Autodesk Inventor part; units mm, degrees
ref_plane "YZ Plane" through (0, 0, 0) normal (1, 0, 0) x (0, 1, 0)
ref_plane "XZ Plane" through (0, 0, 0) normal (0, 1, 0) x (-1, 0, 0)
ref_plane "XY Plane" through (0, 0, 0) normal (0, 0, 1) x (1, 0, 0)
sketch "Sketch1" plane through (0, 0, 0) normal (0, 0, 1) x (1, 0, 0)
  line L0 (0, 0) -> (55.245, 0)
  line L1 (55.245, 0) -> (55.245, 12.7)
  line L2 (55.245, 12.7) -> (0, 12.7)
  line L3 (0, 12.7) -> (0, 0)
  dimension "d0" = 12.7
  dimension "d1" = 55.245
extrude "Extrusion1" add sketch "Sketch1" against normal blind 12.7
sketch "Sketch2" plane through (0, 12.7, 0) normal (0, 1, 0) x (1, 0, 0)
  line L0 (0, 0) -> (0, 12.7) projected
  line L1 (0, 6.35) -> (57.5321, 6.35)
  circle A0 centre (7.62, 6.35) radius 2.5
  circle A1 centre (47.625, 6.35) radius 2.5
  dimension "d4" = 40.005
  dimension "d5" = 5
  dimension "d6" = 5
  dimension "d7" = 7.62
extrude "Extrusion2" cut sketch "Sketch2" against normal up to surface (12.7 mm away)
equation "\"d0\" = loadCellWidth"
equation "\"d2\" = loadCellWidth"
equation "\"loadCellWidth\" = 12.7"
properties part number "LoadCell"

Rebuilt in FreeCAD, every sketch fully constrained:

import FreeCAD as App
import Part
import Sketcher
Q = App.Units.Quantity


def add_polygon(sketch, points):
    """Adds a closed chain of lines whose ends are joined by coincident constraints."""
    first, n = sketch.GeometryCount, len(points)
    for a, b in zip(points, points[1:] + points[:1]):
        sketch.addGeometry(Part.LineSegment(App.Vector(*a, 0), App.Vector(*b, 0)), False)
    for i in range(n):
        sketch.addConstraint(Sketcher.Constraint("Coincident", first + i, 2, first + (i + 1) % n, 1))

doc = App.newDocument("Part")
body = doc.addObject("PartDesign::Body", "Body")

sketch1 = body.newObject("Sketcher::SketchObject", "Sketch")
sketch1.AttachmentSupport = (doc.getObject("XY_Plane"), [""])
sketch1.MapMode = "FlatFace"
add_polygon(sketch1, [(0, 12.7), (0, 0), (55.245, 0), (55.245, 12.7)])
sketch1.addConstraint([
    Sketcher.Constraint("Vertical", 0),
    Sketcher.Constraint("Horizontal", 1),
    Sketcher.Constraint("Vertical", 2),
    Sketcher.Constraint("Horizontal", 3),
    Sketcher.Constraint("Coincident", 0, 2, -1, 1),
    Sketcher.Constraint("DistanceY", 0, 2, 0, 1, Q("0.5 in")),
    Sketcher.Constraint("DistanceX", 1, 1, 1, 2, Q("2.175 in")),
])
pad1 = body.newObject("PartDesign::Pad", "Pad")
pad1.Profile = sketch1
pad1.Length = Q("0.5 in")
pad1.Reversed = True

sketch2 = body.newObject("Sketcher::SketchObject", "Sketch001")
sketch2.AttachmentSupport = (doc.getObject("XZ_Plane"), [""])
sketch2.MapMode = "FlatFace"
sketch2.AttachmentOffset = App.Placement(App.Vector(0, 0, -0.5 * 25.4), App.Rotation())
sketch2.addGeometry([
    Part.Circle(App.Vector(7.62, -6.35, 0), App.Vector(0, 0, 1), 2.5),
    Part.Circle(App.Vector(47.625, -6.35, 0), App.Vector(0, 0, 1), 2.5),
], False)
sketch2.addConstraint([
    Sketcher.Constraint("Equal", 0, 1),
    Sketcher.Constraint("Horizontal", 0, 3, 1, 3),
    Sketcher.Constraint("DistanceX", -1, 1, 0, 3, Q("0.3 in")),
    Sketcher.Constraint("Diameter", 0, Q("5 mm")),
    Sketcher.Constraint("DistanceX", 0, 3, 1, 3, Q("1.575 in")),
    Sketcher.Constraint("DistanceY", 0, 3, -1, 1, Q("0.25 in")),
])
pocket1 = body.newObject("PartDesign::Pocket", "Pocket")
pocket1.Profile = sketch2
pocket1.Length = Q("0.5 in")
pocket1.Reversed = True

doc.recompute()
